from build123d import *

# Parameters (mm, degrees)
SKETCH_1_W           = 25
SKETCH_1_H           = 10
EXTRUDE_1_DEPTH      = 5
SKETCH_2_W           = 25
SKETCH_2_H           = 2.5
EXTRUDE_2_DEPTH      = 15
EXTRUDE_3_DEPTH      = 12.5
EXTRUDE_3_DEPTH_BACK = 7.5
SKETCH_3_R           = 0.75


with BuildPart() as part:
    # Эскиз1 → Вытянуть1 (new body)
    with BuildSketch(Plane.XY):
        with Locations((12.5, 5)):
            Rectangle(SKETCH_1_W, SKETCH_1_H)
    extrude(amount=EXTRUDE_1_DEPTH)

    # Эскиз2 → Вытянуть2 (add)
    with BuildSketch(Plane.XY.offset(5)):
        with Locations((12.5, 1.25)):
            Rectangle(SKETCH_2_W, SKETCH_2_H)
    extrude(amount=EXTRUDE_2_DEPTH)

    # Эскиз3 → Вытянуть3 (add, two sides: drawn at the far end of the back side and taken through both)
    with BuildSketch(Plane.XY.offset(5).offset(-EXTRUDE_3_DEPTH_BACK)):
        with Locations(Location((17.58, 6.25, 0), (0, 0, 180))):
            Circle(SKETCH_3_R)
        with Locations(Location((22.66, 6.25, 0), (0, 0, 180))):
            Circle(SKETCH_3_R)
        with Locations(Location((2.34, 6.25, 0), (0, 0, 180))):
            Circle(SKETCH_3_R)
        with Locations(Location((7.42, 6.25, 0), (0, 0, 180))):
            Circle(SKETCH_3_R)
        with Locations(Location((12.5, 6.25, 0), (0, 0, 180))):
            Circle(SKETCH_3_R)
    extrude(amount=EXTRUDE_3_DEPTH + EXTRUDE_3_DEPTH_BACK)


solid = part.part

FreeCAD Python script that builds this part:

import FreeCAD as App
import Part
import Sketcher

V = App.Vector


def add_polygon(sketch, points):
    """Adds a closed chain of lines whose ends are joined by coincident constraints."""
    first, n = sketch.GeometryCount, len(points)
    for a, b in zip(points, points[1:] + points[:1]):
        sketch.addGeometry(Part.LineSegment(App.Vector(*a, 0), App.Vector(*b, 0)), False)
    for i in range(n):
        sketch.addConstraint(Sketcher.Constraint("Coincident", first + i, 2, first + (i + 1) % n, 1))

doc = App.newDocument("Part")
params = doc.addObject("Spreadsheet::Sheet", "Params")
for row, (alias, value) in enumerate([
    ("sketch1_width", "25 mm"),
    ("sketch1_height", "10 mm"),
    ("pad1_length", "5 mm"),
    ("sketch2_width", "25 mm"),
    ("sketch2_height", "2.5 mm"),
    ("pad2_length", "15 mm"),
    ("sketch3_diameter", "1.5 mm"),
    ("pad3_length", "12.5 mm"),
    ("pad3_length2", "7.5 mm"),
], start=1):
    params.set(f"A{row}", alias)
    params.set(f"B{row}", "=" + value)
    params.setAlias(f"B{row}", alias)

body = doc.addObject("PartDesign::Body", "Body")

# Sketch on XY plane
sketch1 = body.newObject("Sketcher::SketchObject", "Sketch")
sketch1.AttachmentSupport = (doc.getObject("XY_Plane"), [""])
sketch1.MapMode = "FlatFace"
add_polygon(sketch1, [(0, 10), (0, 0), (25, 0), (25, 10)])  # lines 0-3
sketch1.addConstraint([
    Sketcher.Constraint("Vertical", 0),
    Sketcher.Constraint("Horizontal", 1),
    Sketcher.Constraint("Vertical", 2),
    Sketcher.Constraint("Horizontal", 3),
    Sketcher.Constraint("Coincident", 0, 2, -1, 1),
    Sketcher.Constraint("DistanceX", 1, 1, 1, 2, 25.0),
    Sketcher.Constraint("DistanceY", 0, 2, 0, 1, 10.0),
])
sketch1.setExpression("Constraints[9]", "Params.sketch1_width")
sketch1.setExpression("Constraints[10]", "Params.sketch1_height")
pad1 = body.newObject("PartDesign::Pad", "Pad")
pad1.Profile = sketch1
pad1.setExpression("Length", "Params.pad1_length")

# Sketch on XY plane
sketch2 = body.newObject("Sketcher::SketchObject", "Sketch001")
sketch2.AttachmentSupport = (doc.getObject("XY_Plane"), [""])
sketch2.MapMode = "FlatFace"
sketch2.AttachmentOffset = App.Placement(V(0, 0, 5), App.Rotation())
add_polygon(sketch2, [(0, 2.5), (0, 0), (25, 0), (25, 2.5)])  # lines 0-3
sketch2.addConstraint([
    Sketcher.Constraint("Vertical", 0),
    Sketcher.Constraint("Horizontal", 1),
    Sketcher.Constraint("Vertical", 2),
    Sketcher.Constraint("Horizontal", 3),
    Sketcher.Constraint("Coincident", 0, 2, -1, 1),
    Sketcher.Constraint("DistanceX", 1, 1, 1, 2, 25.0),
    Sketcher.Constraint("DistanceY", 0, 2, 0, 1, 2.5),
])
sketch2.setExpression("Constraints[9]", "Params.sketch2_width")
sketch2.setExpression("Constraints[10]", "Params.sketch2_height")
pad2 = body.newObject("PartDesign::Pad", "Pad001")
pad2.Profile = sketch2
pad2.setExpression("Length", "Params.pad2_length")

# Sketch on XY plane
sketch3 = body.newObject("Sketcher::SketchObject", "Sketch002")
sketch3.AttachmentSupport = (doc.getObject("XY_Plane"), [""])
sketch3.MapMode = "FlatFace"
sketch3.AttachmentOffset = App.Placement(V(0, 0, 5), App.Rotation())
sketch3.addGeometry([
    Part.Circle(V(17.6, 6.2, 0), V(0, 0, 1), 0.8),  # 0
    Part.Circle(V(22.7, 6.2, 0), V(0, 0, 1), 0.8),  # 1
    Part.Circle(V(2.3, 6.2, 0), V(0, 0, 1), 0.8),  # 2
    Part.Circle(V(7.4, 6.2, 0), V(0, 0, 1), 0.8),  # 3
    Part.Circle(V(12.5, 6.2, 0), V(0, 0, 1), 0.8),  # 4
], False)
sketch3.addConstraint([
    Sketcher.Constraint("Equal", 0, 1),
    Sketcher.Constraint("Equal", 1, 2),
    Sketcher.Constraint("Equal", 2, 3),
    Sketcher.Constraint("Equal", 3, 4),
    Sketcher.Constraint("Horizontal", 0, 3, 1, 3),
    Sketcher.Constraint("Horizontal", 1, 3, 2, 3),
    Sketcher.Constraint("Horizontal", 2, 3, 3, 3),
    Sketcher.Constraint("Horizontal", 3, 3, 4, 3),
    Sketcher.Constraint("Diameter", 0, 1.5),
    Sketcher.Constraint("DistanceX", -1, 1, 4, 3, 12.5),
    Sketcher.Constraint("DistanceX", -1, 1, 0, 3, 17.58),
    Sketcher.Constraint("DistanceY", -1, 1, 0, 3, 6.25),
    Sketcher.Constraint("DistanceX", -1, 1, 1, 3, 22.66),
    Sketcher.Constraint("DistanceX", -1, 1, 2, 3, 2.34),
    Sketcher.Constraint("DistanceX", -1, 1, 3, 3, 7.42),
])
sketch3.setExpression("Constraints[8]", "Params.sketch3_diameter")
pad3 = body.newObject("PartDesign::Pad", "Pad002")
pad3.Profile = sketch3
pad3.Type = "TwoLengths"
pad3.setExpression("Length", "Params.pad3_length")
pad3.setExpression("Length2", "Params.pad3_length2")

doc.recompute()
